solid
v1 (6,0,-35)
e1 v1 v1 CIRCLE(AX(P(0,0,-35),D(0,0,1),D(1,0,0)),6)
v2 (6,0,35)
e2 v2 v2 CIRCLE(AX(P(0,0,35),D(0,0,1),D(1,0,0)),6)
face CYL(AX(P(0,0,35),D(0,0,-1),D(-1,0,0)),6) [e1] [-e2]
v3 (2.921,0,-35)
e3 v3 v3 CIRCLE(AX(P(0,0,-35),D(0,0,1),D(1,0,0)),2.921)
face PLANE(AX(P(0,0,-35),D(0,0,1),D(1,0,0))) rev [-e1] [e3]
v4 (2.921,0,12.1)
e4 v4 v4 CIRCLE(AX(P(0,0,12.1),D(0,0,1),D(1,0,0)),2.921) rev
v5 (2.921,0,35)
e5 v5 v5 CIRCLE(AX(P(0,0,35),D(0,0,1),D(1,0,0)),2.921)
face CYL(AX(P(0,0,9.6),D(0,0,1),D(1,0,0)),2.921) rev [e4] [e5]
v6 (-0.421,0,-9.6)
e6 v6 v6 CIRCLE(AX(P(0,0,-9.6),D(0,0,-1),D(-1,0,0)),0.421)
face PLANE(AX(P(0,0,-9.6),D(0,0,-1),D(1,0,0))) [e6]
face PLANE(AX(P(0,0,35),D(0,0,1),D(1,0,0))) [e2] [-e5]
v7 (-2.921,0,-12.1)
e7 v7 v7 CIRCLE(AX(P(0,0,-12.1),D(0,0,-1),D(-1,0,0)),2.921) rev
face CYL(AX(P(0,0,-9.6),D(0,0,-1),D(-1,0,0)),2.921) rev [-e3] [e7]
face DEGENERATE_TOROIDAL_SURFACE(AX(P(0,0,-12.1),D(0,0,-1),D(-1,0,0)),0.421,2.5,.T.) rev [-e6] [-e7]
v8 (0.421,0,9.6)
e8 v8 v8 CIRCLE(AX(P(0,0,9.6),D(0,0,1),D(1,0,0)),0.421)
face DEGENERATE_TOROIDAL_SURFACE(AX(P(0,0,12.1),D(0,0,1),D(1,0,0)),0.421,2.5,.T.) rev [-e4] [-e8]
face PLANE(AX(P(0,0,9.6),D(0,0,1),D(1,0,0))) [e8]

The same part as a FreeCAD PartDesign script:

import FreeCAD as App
import Part
import Sketcher


def edges_at(feature, points):
    """Names of the edges that pass closest to the given points."""
    edges = feature.Shape.Edges
    near = lambda p: min(range(len(edges)), key=lambda i: edges[i].distToShape(Part.Vertex(*p))[0])
    return sorted({f"Edge{near(p) + 1}" for p in points})

doc = App.newDocument("Part")
body = doc.addObject("PartDesign::Body", "Body")

sketch1 = doc.addObject("Sketcher::SketchObject", "Sketch")
body.addObject(sketch1)
sketch1.AttachmentSupport = (doc.XY_Plane, [""])
sketch1.MapMode = "FlatFace"
sketch1.addGeometry(Part.Circle(App.Vector(0, 0, 0), App.Vector(0, 0, 1), 6), False)
sketch1.addConstraint([
    Sketcher.Constraint("Coincident", 0, 3, -1, 1),
    Sketcher.Constraint("Diameter", 0, 12.0),
])
pad1 = doc.addObject("PartDesign::Pad", "Pad")
body.addObject(pad1)
pad1.Profile = sketch1
pad1.Length = 70
pad1.Midplane = True

sketch2 = doc.addObject("Sketcher::SketchObject", "Sketch001")
body.addObject(sketch2)
sketch2.AttachmentSupport = (doc.XY_Plane, [""])
sketch2.MapMode = "FlatFace"
sketch2.AttachmentOffset = App.Placement(App.Vector(0, 0, 35), App.Rotation())
sketch2.addGeometry(Part.Circle(App.Vector(0, 0, 0), App.Vector(0, 0, 1), 2.9), False)
sketch2.addConstraint([
    Sketcher.Constraint("Coincident", 0, 3, -1, 1),
    Sketcher.Constraint("Diameter", 0, 5.842),
])
pocket1 = doc.addObject("PartDesign::Pocket", "Pocket")
body.addObject(pocket1)
pocket1.Profile = sketch2
pocket1.Length = 25.4
doc.recompute()

mirrored = doc.addObject("PartDesign::Mirrored", "Mirrored")
body.addObject(mirrored)
mirrored.Originals = [pocket1]
mirrored.MirrorPlane = (doc.XY_Plane, [""])
body.Tip = mirrored
doc.recompute()

fillet = doc.addObject("PartDesign::Fillet", "Fillet")
body.addObject(fillet)
fillet.Base = (mirrored, edges_at(mirrored, [(-2.921, 0, -9.6), (-2.921, 0, 9.6)]))
fillet.Radius = 2.5

doc.recompute()
